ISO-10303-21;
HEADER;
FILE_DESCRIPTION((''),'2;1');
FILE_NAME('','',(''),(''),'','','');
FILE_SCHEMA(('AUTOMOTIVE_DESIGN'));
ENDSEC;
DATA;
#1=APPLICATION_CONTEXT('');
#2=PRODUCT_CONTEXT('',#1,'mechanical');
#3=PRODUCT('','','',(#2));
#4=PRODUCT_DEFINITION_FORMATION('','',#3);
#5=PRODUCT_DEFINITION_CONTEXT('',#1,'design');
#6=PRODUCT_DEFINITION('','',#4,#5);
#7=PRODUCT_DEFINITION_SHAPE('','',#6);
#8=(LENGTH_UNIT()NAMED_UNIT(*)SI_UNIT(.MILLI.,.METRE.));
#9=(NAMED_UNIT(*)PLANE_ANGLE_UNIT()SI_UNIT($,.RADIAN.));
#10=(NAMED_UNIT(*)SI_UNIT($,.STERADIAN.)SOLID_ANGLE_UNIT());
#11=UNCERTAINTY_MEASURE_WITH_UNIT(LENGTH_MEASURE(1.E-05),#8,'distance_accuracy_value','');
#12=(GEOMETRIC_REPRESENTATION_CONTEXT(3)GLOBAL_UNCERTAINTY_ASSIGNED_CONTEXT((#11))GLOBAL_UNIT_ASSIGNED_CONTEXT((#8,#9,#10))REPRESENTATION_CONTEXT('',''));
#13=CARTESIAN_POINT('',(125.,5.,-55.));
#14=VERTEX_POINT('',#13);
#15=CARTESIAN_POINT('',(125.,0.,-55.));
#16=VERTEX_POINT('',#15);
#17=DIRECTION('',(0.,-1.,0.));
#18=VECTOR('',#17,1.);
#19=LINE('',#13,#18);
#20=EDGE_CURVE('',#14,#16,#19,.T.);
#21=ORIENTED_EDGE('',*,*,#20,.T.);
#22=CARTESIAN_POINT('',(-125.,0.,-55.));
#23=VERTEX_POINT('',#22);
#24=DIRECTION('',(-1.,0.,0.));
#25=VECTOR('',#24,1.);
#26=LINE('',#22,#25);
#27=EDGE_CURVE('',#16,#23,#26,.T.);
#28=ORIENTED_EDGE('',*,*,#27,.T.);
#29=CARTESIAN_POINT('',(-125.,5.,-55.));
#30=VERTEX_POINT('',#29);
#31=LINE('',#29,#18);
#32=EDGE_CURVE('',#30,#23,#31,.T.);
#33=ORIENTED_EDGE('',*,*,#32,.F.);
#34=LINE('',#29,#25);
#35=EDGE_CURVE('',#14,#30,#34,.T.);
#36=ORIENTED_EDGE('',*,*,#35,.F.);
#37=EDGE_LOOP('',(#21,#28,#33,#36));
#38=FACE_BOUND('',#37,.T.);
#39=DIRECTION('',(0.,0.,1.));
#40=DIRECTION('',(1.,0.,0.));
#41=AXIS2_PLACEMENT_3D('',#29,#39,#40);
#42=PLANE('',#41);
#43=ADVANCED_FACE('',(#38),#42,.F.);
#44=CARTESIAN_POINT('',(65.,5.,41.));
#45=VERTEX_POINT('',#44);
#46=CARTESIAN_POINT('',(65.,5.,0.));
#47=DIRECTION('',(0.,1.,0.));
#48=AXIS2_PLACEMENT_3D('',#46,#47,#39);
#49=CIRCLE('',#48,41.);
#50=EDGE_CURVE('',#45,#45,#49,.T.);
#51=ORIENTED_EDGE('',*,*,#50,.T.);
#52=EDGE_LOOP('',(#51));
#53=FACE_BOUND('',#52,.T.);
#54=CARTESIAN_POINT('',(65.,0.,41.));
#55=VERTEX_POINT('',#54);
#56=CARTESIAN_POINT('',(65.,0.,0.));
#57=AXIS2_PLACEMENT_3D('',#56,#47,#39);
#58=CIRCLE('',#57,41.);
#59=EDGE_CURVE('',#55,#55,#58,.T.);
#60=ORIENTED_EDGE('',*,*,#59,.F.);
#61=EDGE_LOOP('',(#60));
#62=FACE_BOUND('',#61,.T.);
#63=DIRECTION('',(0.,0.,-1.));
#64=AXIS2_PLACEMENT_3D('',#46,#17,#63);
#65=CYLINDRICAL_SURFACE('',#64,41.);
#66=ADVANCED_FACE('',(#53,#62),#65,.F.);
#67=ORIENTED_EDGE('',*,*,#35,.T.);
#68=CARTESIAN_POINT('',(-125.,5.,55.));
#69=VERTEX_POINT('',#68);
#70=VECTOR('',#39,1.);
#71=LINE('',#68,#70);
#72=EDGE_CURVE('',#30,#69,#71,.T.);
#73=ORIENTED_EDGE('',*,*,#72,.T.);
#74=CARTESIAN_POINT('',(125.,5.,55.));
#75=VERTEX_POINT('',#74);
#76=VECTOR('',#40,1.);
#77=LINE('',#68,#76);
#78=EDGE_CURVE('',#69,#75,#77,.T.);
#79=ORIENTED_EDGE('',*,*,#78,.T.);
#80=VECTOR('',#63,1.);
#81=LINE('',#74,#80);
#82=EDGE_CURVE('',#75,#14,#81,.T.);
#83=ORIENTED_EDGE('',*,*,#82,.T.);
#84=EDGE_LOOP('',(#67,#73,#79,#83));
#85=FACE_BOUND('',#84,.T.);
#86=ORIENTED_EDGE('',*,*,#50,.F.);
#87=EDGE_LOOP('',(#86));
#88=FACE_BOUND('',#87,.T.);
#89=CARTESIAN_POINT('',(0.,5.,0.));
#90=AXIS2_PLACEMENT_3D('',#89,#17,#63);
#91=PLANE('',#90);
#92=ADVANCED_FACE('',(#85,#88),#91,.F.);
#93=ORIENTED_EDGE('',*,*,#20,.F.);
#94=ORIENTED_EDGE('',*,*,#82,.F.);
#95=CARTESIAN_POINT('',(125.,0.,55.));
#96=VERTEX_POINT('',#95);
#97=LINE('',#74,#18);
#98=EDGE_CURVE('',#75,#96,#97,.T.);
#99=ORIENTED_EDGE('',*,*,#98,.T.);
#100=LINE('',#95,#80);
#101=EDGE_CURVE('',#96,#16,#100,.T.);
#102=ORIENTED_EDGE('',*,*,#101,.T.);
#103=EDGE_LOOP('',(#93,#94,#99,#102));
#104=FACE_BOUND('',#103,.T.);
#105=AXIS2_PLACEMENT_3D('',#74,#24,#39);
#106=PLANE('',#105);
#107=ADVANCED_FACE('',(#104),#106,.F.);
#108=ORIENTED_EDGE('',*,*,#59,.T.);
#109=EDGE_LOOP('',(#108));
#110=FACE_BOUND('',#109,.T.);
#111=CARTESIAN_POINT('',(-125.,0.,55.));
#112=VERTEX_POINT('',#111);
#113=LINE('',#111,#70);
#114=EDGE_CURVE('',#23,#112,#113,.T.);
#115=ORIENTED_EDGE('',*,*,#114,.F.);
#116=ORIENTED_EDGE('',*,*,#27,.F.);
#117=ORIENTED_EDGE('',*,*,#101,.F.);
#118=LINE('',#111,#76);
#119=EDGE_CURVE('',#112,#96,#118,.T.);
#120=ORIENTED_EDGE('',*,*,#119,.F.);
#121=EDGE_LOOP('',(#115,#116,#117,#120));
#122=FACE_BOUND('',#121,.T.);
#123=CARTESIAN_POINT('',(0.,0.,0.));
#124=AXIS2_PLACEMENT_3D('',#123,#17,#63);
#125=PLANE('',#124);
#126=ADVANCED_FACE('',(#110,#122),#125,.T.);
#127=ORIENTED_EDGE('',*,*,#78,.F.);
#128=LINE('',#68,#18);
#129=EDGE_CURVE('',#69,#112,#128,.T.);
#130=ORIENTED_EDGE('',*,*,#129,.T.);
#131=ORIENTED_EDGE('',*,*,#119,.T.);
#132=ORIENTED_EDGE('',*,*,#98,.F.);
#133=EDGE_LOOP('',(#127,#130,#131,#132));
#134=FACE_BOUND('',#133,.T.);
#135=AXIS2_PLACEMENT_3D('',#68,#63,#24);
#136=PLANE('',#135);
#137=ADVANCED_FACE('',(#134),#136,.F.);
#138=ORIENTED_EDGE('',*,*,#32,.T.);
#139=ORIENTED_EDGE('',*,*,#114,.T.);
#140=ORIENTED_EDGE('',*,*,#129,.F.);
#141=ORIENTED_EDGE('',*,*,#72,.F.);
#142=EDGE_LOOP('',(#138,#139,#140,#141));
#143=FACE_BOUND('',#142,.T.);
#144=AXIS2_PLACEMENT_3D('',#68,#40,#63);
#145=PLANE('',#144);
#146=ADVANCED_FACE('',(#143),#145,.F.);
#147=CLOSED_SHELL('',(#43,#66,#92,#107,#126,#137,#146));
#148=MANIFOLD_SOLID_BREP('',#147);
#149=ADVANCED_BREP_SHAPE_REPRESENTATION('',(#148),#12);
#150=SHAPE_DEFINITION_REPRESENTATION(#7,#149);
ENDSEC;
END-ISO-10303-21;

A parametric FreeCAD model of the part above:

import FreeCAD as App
import Part
import Sketcher

V = App.Vector
Q = App.Units.Quantity

doc = App.newDocument("Part")
params = doc.addObject("Spreadsheet::Sheet", "Params")
for row, (alias, value) in enumerate([
    ("sketch1_diameter", "82 mm"),
    ("sketch1_width", "250 mm"),
    ("sketch1_height", "110 mm"),
    ("pad1_length", "5 mm"),
], start=1):
    params.set(f"A{row}", alias)
    params.set(f"B{row}", "=" + value)
    params.setAlias(f"B{row}", alias)

body = doc.addObject("PartDesign::Body", "Body")

# Sketch on XZ plane
sketch1 = body.newObject("Sketcher::SketchObject", "Sketch")
sketch1.AttachmentSupport = (doc.getObject("XZ_Plane"), [""])
sketch1.MapMode = "FlatFace"
sketch1.addGeometry(Part.LineSegment(V(-125, -55, 0), V(-125, 55, 0)), False)
sketch1.addGeometry(Part.LineSegment(V(-125, 55, 0), V(125, 55, 0)), False)
sketch1.addGeometry(Part.LineSegment(V(125, 55, 0), V(125, -55, 0)), False)
sketch1.addGeometry(Part.LineSegment(V(125, -55, 0), V(-125, -55, 0)), False)
sketch1.addGeometry(Part.Circle(V(65, 0, 0), V(0, 0, 1), 41), False)
sketch1.addConstraint(Sketcher.Constraint("Coincident", 0, 2, 1, 1))
sketch1.addConstraint(Sketcher.Constraint("Coincident", 1, 2, 2, 1))
sketch1.addConstraint(Sketcher.Constraint("Coincident", 2, 2, 3, 1))
sketch1.addConstraint(Sketcher.Constraint("Coincident", 3, 2, 0, 1))
sketch1.addConstraint(Sketcher.Constraint("Vertical", 0))
sketch1.addConstraint(Sketcher.Constraint("Horizontal", 1))
sketch1.addConstraint(Sketcher.Constraint("Vertical", 2))
sketch1.addConstraint(Sketcher.Constraint("Horizontal", 3))
sketch1.addConstraint(Sketcher.Constraint("Symmetric", 0, 2, 2, 2, -1, 1))
sketch1.addConstraint(Sketcher.Constraint("PointOnObject", 4, 3, -1))
sketch1.addConstraint(Sketcher.Constraint("Diameter", 4, Q("82 mm")))
sketch1.addConstraint(Sketcher.Constraint("DistanceX", 1, 1, 1, 2, Q("250 mm")))
sketch1.addConstraint(Sketcher.Constraint("DistanceY", 0, 1, 0, 2, Q("110 mm")))
sketch1.addConstraint(Sketcher.Constraint("DistanceX", -1, 1, 4, 3, Q("65 mm")))
sketch1.setExpression("Constraints[10]", "Params.sketch1_diameter")
sketch1.setExpression("Constraints[11]", "Params.sketch1_width")
sketch1.setExpression("Constraints[12]", "Params.sketch1_height")
pad1 = body.newObject("PartDesign::Pad", "Pad")
pad1.Profile = sketch1
pad1.setExpression("Length", "Params.pad1_length")
pad1.Reversed = True

doc.recompute()
